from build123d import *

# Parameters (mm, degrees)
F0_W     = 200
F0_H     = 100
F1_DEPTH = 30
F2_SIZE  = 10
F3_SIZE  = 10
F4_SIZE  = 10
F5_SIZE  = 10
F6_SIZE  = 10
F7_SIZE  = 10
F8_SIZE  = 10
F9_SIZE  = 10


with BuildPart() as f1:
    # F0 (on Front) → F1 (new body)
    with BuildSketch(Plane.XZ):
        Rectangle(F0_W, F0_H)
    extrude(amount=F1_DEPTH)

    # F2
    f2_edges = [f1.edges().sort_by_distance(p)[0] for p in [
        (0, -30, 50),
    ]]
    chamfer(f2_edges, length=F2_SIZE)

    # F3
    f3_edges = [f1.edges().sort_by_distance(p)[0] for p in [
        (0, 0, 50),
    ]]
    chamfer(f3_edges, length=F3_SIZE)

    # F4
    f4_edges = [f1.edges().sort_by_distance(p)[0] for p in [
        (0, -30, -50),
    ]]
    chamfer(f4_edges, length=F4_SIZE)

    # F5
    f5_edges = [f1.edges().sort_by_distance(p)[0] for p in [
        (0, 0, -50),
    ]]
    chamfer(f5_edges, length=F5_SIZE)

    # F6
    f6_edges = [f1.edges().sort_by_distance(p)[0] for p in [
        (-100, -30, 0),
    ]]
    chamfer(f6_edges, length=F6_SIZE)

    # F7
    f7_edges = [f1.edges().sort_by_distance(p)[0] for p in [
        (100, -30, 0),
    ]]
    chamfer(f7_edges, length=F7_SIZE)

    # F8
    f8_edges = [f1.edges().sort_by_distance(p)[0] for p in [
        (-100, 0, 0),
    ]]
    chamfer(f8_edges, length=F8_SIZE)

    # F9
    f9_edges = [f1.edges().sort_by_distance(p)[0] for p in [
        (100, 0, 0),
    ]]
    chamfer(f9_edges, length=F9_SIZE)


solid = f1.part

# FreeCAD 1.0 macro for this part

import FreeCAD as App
import Part
import Sketcher
from FreeCAD import Vector


def edges_at(feature, points):
    """Names of the edges that pass closest to the given points."""
    edges = feature.Shape.Edges
    near = lambda p: min(range(len(edges)), key=lambda i: edges[i].distToShape(Part.Vertex(*p))[0])
    return sorted({f"Edge{near(p) + 1}" for p in points})


def add_polygon(sketch, points):
    """Adds a closed chain of lines whose ends are joined by coincident constraints."""
    first, n = sketch.GeometryCount, len(points)
    for a, b in zip(points, points[1:] + points[:1]):
        sketch.addGeometry(Part.LineSegment(App.Vector(*a, 0), App.Vector(*b, 0)), False)
    for i in range(n):
        sketch.addConstraint(Sketcher.Constraint("Coincident", first + i, 2, first + (i + 1) % n, 1))

doc = App.newDocument("Part")
body = doc.addObject("PartDesign::Body", "Body")

# Sketch on XZ plane
sketch1 = body.newObject("Sketcher::SketchObject", "Sketch")
sketch1.AttachmentSupport = (doc.getObject("XZ_Plane"), [""])
sketch1.MapMode = "FlatFace"
add_polygon(sketch1, [(-100, 50), (-100, -50), (100, -50), (100, 50)])  # lines 0-3
sketch1.addConstraint(Sketcher.Constraint("Vertical", 0))
sketch1.addConstraint(Sketcher.Constraint("Horizontal", 1))
sketch1.addConstraint(Sketcher.Constraint("Vertical", 2))
sketch1.addConstraint(Sketcher.Constraint("Horizontal", 3))
sketch1.addConstraint(Sketcher.Constraint("Symmetric", 0, 2, 2, 2, -1, 1))
sketch1.addConstraint(Sketcher.Constraint("DistanceX", 1, 1, 1, 2, 200.0))
sketch1.addConstraint(Sketcher.Constraint("DistanceY", 0, 2, 0, 1, 100.0))
pad1 = body.newObject("PartDesign::Pad", "Pad")
pad1.Profile = sketch1
pad1.Length = 30
doc.recompute()

chamfer = body.newObject("PartDesign::Chamfer", "Chamfer")
chamfer.Base = (pad1, edges_at(pad1, [(0, -30, 50)]))
chamfer.Size = 10
doc.recompute()

chamfer2 = body.newObject("PartDesign::Chamfer", "Chamfer001")
chamfer2.Base = (chamfer, edges_at(chamfer, [(0, 0, 50)]))
chamfer2.Size = 10
doc.recompute()

chamfer3 = body.newObject("PartDesign::Chamfer", "Chamfer002")
chamfer3.Base = (chamfer2, edges_at(chamfer2, [(0, -30, -50)]))
chamfer3.Size = 10
doc.recompute()

chamfer4 = body.newObject("PartDesign::Chamfer", "Chamfer003")
chamfer4.Base = (chamfer3, edges_at(chamfer3, [(0, 0, -50)]))
chamfer4.Size = 10
doc.recompute()

chamfer5 = body.newObject("PartDesign::Chamfer", "Chamfer004")
chamfer5.Base = (chamfer4, edges_at(chamfer4, [(-100, -30, 0)]))
chamfer5.Size = 10
doc.recompute()

chamfer6 = body.newObject("PartDesign::Chamfer", "Chamfer005")
chamfer6.Base = (chamfer5, edges_at(chamfer5, [(100, -30, 0)]))
chamfer6.Size = 10
doc.recompute()

chamfer7 = body.newObject("PartDesign::Chamfer", "Chamfer006")
chamfer7.Base = (chamfer6, edges_at(chamfer6, [(-100, 0, 0)]))
chamfer7.Size = 10
doc.recompute()

chamfer8 = body.newObject("PartDesign::Chamfer", "Chamfer007")
chamfer8.Base = (chamfer7, edges_at(chamfer7, [(100, 0, 0)]))
chamfer8.Size = 10

doc.recompute()
